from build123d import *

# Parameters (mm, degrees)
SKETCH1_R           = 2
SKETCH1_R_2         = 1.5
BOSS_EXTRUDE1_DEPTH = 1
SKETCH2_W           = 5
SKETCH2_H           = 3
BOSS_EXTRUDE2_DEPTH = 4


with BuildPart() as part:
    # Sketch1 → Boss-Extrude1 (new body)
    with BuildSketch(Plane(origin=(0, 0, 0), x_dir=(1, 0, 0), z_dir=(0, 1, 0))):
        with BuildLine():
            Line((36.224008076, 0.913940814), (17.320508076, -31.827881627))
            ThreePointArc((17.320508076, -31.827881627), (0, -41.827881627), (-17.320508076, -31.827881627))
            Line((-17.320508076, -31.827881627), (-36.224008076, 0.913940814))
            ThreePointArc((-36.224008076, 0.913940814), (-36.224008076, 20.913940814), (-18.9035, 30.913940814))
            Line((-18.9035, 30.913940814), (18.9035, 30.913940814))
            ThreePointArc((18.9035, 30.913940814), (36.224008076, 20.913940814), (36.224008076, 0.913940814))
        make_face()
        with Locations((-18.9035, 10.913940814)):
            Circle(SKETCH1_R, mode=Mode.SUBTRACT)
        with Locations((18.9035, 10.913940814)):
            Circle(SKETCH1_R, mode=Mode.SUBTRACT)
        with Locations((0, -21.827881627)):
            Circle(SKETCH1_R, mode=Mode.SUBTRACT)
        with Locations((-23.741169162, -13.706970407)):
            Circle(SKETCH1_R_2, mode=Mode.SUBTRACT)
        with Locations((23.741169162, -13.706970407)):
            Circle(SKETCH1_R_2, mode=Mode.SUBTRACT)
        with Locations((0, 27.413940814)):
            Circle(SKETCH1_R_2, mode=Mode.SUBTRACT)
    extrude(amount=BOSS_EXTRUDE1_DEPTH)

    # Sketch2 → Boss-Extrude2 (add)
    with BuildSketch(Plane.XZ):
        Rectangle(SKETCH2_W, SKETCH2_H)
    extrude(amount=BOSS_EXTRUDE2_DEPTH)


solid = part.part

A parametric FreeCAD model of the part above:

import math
import FreeCAD as App
import Part
import Sketcher

V = App.Vector
Q = App.Units.Quantity

doc = App.newDocument("Part")
params = doc.addObject("Spreadsheet::Sheet", "Params")
for row, (alias, value) in enumerate([
    ("sketch1_diameter", "3 mm"),
    ("sketch1_diameter2", "4 mm"),
    ("sketch1_radius", "20 mm"),
    ("pad1_length", "1 mm"),
    ("sketch2_width", "5 mm"),
    ("sketch2_height", "3 mm"),
    ("pad2_length", "4 mm"),
], start=1):
    params.set(f"A{row}", alias)
    params.set(f"B{row}", "=" + value)
    params.setAlias(f"B{row}", alias)

body = doc.addObject("PartDesign::Body", "Body")

# Sketch on XZ plane
sketch1 = body.newObject("Sketcher::SketchObject", "Sketch")
sketch1.AttachmentSupport = (doc.getObject("XZ_Plane"), [""])
sketch1.MapMode = "FlatFace"
sketch1.addGeometry(Part.LineSegment(V(17.3, 31.8, 0), V(36.2, -0.9, 0)), False)
sketch1.addGeometry(Part.ArcOfCircle(Part.Circle(V(18.9, -10.9, 0), V(0, 0, 1), 20), math.radians(-90), math.radians(30)), False)
sketch1.addGeometry(Part.LineSegment(V(18.9, -30.9, 0), V(-18.9, -30.9, 0)), False)
sketch1.addGeometry(Part.ArcOfCircle(Part.Circle(V(-18.9, -10.9, 0), V(0, 0, 1), 20), math.radians(150), math.radians(270)), False)
sketch1.addGeometry(Part.LineSegment(V(-36.2, -0.9, 0), V(-17.3, 31.8, 0)), False)
sketch1.addGeometry(Part.ArcOfCircle(Part.Circle(V(0, 21.8, 0), V(0, 0, 1), 20), math.radians(30), math.radians(150)), False)
sketch1.addGeometry(Part.Circle(V(23.7, 13.7, 0), V(0, 0, 1), 1.5), False)
sketch1.addGeometry(Part.Circle(V(0, 21.8, 0), V(0, 0, 1), 2), False)
sketch1.addGeometry(Part.Circle(V(-23.7, 13.7, 0), V(0, 0, 1), 1.5), False)
sketch1.addGeometry(Part.Circle(V(18.9, -10.9, 0), V(0, 0, 1), 2), False)
sketch1.addGeometry(Part.Circle(V(-18.9, -10.9, 0), V(0, 0, 1), 2), False)
sketch1.addGeometry(Part.Circle(V(0, -27.4, 0), V(0, 0, 1), 1.5), False)
sketch1.addConstraint(Sketcher.Constraint("Tangent", 0, 2, 1, 2))
sketch1.addConstraint(Sketcher.Constraint("Tangent", 1, 1, 2, 1))
sketch1.addConstraint(Sketcher.Constraint("Tangent", 2, 2, 3, 2))
sketch1.addConstraint(Sketcher.Constraint("Tangent", 3, 1, 4, 1))
sketch1.addConstraint(Sketcher.Constraint("Tangent", 4, 2, 5, 2))
sketch1.addConstraint(Sketcher.Constraint("Tangent", 5, 1, 0, 1))
sketch1.addConstraint(Sketcher.Constraint("Horizontal", 2))
sketch1.addConstraint(Sketcher.Constraint("Coincident", 7, 3, 5, 3))
sketch1.addConstraint(Sketcher.Constraint("Coincident", 9, 3, 1, 3))
sketch1.addConstraint(Sketcher.Constraint("Coincident", 10, 3, 3, 3))
sketch1.addConstraint(Sketcher.Constraint("Equal", 1, 3))
sketch1.addConstraint(Sketcher.Constraint("Equal", 3, 5))
sketch1.addConstraint(Sketcher.Constraint("Equal", 6, 8))
sketch1.addConstraint(Sketcher.Constraint("Equal", 7, 9))
sketch1.addConstraint(Sketcher.Constraint("Equal", 9, 10))
sketch1.addConstraint(Sketcher.Constraint("Equal", 8, 11))
sketch1.addConstraint(Sketcher.Constraint("Symmetric", 6, 3, 8, 3, -2))
sketch1.addConstraint(Sketcher.Constraint("Symmetric", 0, 2, 3, 1, -2))
sketch1.addConstraint(Sketcher.Constraint("PointOnObject", 11, 3, -2))
sketch1.addConstraint(Sketcher.Constraint("Diameter", 6, Q("3 mm")))
sketch1.addConstraint(Sketcher.Constraint("Diameter", 7, Q("4 mm")))
sketch1.addConstraint(Sketcher.Constraint("Radius", 1, Q("20 mm")))
sketch1.addConstraint(Sketcher.Constraint("Angle", 0, Q("-60 deg")))
sketch1.addConstraint(Sketcher.Constraint("DistanceY", 11, 3, 1, 3, Q("16.5 mm")))
sketch1.addConstraint(Sketcher.Constraint("DistanceX", 2, 2, 2, 1, Q("37.807 mm")))
sketch1.addConstraint(Sketcher.Constraint("DistanceY", 1, 3, -1, 1, Q("10.913941 mm")))
sketch1.addConstraint(Sketcher.Constraint("DistanceX", -1, 1, 6, 3, Q("23.741169 mm")))
sketch1.addConstraint(Sketcher.Constraint("DistanceY", -1, 1, 6, 3, Q("13.70697 mm")))
sketch1.setExpression("Constraints[19]", "Params.sketch1_diameter")
sketch1.setExpression("Constraints[20]", "Params.sketch1_diameter2")
sketch1.setExpression("Constraints[21]", "Params.sketch1_radius")
pad1 = body.newObject("PartDesign::Pad", "Pad")
pad1.Profile = sketch1
pad1.setExpression("Length", "Params.pad1_length")
pad1.Reversed = True

# Sketch on XZ plane
sketch2 = body.newObject("Sketcher::SketchObject", "Sketch001")
sketch2.AttachmentSupport = (doc.getObject("XZ_Plane"), [""])
sketch2.MapMode = "FlatFace"
sketch2.addGeometry(Part.LineSegment(V(-2.5, 1.5, 0), V(-2.5, -1.5, 0)), False)
sketch2.addGeometry(Part.LineSegment(V(-2.5, -1.5, 0), V(2.5, -1.5, 0)), False)
sketch2.addGeometry(Part.LineSegment(V(2.5, -1.5, 0), V(2.5, 1.5, 0)), False)
sketch2.addGeometry(Part.LineSegment(V(2.5, 1.5, 0), V(-2.5, 1.5, 0)), False)
sketch2.addConstraint(Sketcher.Constraint("Coincident", 0, 2, 1, 1))
sketch2.addConstraint(Sketcher.Constraint("Coincident", 1, 2, 2, 1))
sketch2.addConstraint(Sketcher.Constraint("Coincident", 2, 2, 3, 1))
sketch2.addConstraint(Sketcher.Constraint("Coincident", 3, 2, 0, 1))
sketch2.addConstraint(Sketcher.Constraint("Vertical", 0))
sketch2.addConstraint(Sketcher.Constraint("Horizontal", 1))
sketch2.addConstraint(Sketcher.Constraint("Vertical", 2))
sketch2.addConstraint(Sketcher.Constraint("Horizontal", 3))
sketch2.addConstraint(Sketcher.Constraint("Symmetric", 0, 2, 2, 2, -1, 1))
sketch2.addConstraint(Sketcher.Constraint("DistanceX", 1, 1, 1, 2, Q("5 mm")))
sketch2.addConstraint(Sketcher.Constraint("DistanceY", 0, 2, 0, 1, Q("3 mm")))
sketch2.setExpression("Constraints[9]", "Params.sketch2_width")
sketch2.setExpression("Constraints[10]", "Params.sketch2_height")
pad2 = body.newObject("PartDesign::Pad", "Pad001")
pad2.Profile = sketch2
pad2.setExpression("Length", "Params.pad2_length")

doc.recompute()
